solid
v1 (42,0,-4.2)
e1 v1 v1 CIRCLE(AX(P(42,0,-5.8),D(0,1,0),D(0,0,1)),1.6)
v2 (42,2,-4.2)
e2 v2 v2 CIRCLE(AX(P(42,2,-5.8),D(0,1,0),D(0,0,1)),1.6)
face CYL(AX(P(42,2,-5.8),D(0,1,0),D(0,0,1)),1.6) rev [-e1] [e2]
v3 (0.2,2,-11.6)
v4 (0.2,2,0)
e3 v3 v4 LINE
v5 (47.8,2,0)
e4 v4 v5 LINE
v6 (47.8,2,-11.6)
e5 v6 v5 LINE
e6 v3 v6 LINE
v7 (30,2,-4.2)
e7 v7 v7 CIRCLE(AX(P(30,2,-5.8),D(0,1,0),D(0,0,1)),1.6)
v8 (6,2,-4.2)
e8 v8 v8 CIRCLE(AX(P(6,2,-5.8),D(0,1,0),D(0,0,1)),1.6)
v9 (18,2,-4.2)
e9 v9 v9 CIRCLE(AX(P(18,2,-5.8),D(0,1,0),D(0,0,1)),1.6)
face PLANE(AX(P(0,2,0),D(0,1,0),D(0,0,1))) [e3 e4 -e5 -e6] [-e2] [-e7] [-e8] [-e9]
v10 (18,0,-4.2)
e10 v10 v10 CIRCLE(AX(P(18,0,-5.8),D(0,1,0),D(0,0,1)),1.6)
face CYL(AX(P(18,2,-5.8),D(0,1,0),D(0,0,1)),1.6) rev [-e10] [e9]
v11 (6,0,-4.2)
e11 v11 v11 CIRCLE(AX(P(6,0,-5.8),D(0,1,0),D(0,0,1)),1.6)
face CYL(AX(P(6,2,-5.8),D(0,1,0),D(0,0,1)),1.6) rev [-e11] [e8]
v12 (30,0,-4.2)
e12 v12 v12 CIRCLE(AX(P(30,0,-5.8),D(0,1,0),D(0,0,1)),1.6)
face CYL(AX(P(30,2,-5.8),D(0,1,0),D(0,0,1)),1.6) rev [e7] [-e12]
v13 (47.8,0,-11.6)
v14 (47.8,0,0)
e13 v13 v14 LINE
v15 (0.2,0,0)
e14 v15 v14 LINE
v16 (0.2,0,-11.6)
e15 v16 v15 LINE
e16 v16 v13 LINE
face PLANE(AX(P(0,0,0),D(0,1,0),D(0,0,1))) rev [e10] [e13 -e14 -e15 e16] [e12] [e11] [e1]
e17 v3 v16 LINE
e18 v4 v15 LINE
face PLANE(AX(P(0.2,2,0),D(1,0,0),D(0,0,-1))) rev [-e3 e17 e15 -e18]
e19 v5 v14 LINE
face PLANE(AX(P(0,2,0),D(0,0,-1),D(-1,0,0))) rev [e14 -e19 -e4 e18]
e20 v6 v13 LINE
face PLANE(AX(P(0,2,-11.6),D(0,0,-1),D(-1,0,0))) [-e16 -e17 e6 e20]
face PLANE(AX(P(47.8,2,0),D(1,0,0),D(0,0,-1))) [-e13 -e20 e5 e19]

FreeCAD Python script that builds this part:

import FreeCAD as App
import Part
import Sketcher
from FreeCAD import Vector

doc = App.newDocument("Part")
body = doc.addObject("PartDesign::Body", "Body")

# Sketch on XZ plane
sketch1 = doc.addObject("Sketcher::SketchObject", "Sketch")
body.addObject(sketch1)
sketch1.AttachmentSupport = (doc.XZ_Plane, [""])
sketch1.MapMode = "FlatFace"
sketch1.addGeometry(Part.LineSegment(Vector(0, 0, 0), Vector(48, 0, 0)), False)
sketch1.addGeometry(Part.LineSegment(Vector(48, 0, 0), Vector(48, -12, 0)), False)
sketch1.addGeometry(Part.LineSegment(Vector(48, -12, 0), Vector(0, -12, 0)), False)
sketch1.addGeometry(Part.LineSegment(Vector(0, -12, 0), Vector(0, 0, 0)), False)
sketch1.addConstraint(Sketcher.Constraint("Coincident", 0, 2, 1, 1))
sketch1.addConstraint(Sketcher.Constraint("Coincident", 1, 2, 2, 1))
sketch1.addConstraint(Sketcher.Constraint("Coincident", 2, 2, 3, 1))
sketch1.addConstraint(Sketcher.Constraint("Coincident", 3, 2, 0, 1))
sketch1.addConstraint(Sketcher.Constraint("Horizontal", 0))
sketch1.addConstraint(Sketcher.Constraint("Vertical", 1))
sketch1.addConstraint(Sketcher.Constraint("Horizontal", 2))
sketch1.addConstraint(Sketcher.Constraint("Vertical", 3))
sketch1.addConstraint(Sketcher.Constraint("PointOnObject", 0, 2, -1))
sketch1.addConstraint(Sketcher.Constraint("DistanceX", 0, 1, 0, 2, 47.6))
sketch1.addConstraint(Sketcher.Constraint("DistanceY", 1, 2, 1, 1, 11.6))
sketch1.addConstraint(Sketcher.Constraint("DistanceX", -1, 1, 0, 2, 47.8))
pad1 = doc.addObject("PartDesign::Pad", "Pad")
body.addObject(pad1)
pad1.Profile = sketch1
pad1.Length = 2
pad1.Reversed = True

# Sketch on XZ plane
sketch2 = doc.addObject("Sketcher::SketchObject", "Sketch001")
body.addObject(sketch2)
sketch2.AttachmentSupport = (doc.XZ_Plane, [""])
sketch2.MapMode = "FlatFace"
sketch2.AttachmentOffset = App.Placement(Vector(0, 0, -2), App.Rotation())
sketch2.addGeometry(Part.Circle(Vector(42, -5.8, 0), Vector(0, 0, 1), 1.6), False)
sketch2.addGeometry(Part.Circle(Vector(30, -5.8, 0), Vector(0, 0, 1), 1.6), False)
sketch2.addGeometry(Part.Circle(Vector(18, -5.8, 0), Vector(0, 0, 1), 1.6), False)
sketch2.addGeometry(Part.Circle(Vector(6, -5.8, 0), Vector(0, 0, 1), 1.6), False)
sketch2.addConstraint(Sketcher.Constraint("Equal", 0, 1))
sketch2.addConstraint(Sketcher.Constraint("Equal", 1, 2))
sketch2.addConstraint(Sketcher.Constraint("Equal", 2, 3))
sketch2.addConstraint(Sketcher.Constraint("Horizontal", 0, 3, 1, 3))
sketch2.addConstraint(Sketcher.Constraint("Horizontal", 1, 3, 2, 3))
sketch2.addConstraint(Sketcher.Constraint("Horizontal", 2, 3, 3, 3))
sketch2.addConstraint(Sketcher.Constraint("Diameter", 0, 3.2))
sketch2.addConstraint(Sketcher.Constraint("DistanceX", -1, 1, 0, 3, 42.0))
sketch2.addConstraint(Sketcher.Constraint("DistanceX", -1, 1, 1, 3, 30.0))
sketch2.addConstraint(Sketcher.Constraint("DistanceX", -1, 1, 2, 3, 18.0))
sketch2.addConstraint(Sketcher.Constraint("DistanceX", -1, 1, 3, 3, 6.0))
sketch2.addConstraint(Sketcher.Constraint("DistanceY", 0, 3, -1, 1, 5.8))
doc.recompute()
hole = doc.addObject("PartDesign::Hole", "Hole")
body.addObject(hole)
hole.Profile = sketch2
hole.ThreadType = "None"
hole.Diameter = 3.2
hole.DepthType = "Dimension"
hole.Depth = 3
hole.DrillPoint = "Flat"
hole.Reversed = True

doc.recompute()
